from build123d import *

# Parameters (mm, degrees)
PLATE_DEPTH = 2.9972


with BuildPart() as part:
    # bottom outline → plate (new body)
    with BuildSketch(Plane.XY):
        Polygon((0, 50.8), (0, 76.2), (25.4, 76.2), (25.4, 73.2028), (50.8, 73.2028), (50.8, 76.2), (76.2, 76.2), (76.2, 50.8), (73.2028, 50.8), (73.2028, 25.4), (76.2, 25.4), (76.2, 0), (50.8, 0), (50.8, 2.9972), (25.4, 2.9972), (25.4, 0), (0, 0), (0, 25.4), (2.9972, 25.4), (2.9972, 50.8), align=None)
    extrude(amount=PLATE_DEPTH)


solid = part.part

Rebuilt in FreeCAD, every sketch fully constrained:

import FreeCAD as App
import Part
import Sketcher
Q = App.Units.Quantity

doc = App.newDocument("Part")
params = doc.addObject("Spreadsheet::Sheet", "Params")
for row, (alias, value) in enumerate([
    ("sketch1_width", "1 in"),
    ("sketch1_width2", "0.118 in"),
    ("pad1_length", "0.118 in"),
], start=1):
    params.set(f"A{row}", alias)
    params.set(f"B{row}", "=" + value)
    params.setAlias(f"B{row}", alias)

body = doc.addObject("PartDesign::Body", "Body")

# Sketch on XY plane
sketch1 = body.newObject("Sketcher::SketchObject", "Sketch")
sketch1.AttachmentSupport = (doc.getObject("XY_Plane"), [""])
sketch1.MapMode = "FlatFace"
sketch1.addGeometry([
    Part.LineSegment(App.Vector(0, 76.2, 0), App.Vector(0, 50.8, 0)),  # 0
    Part.LineSegment(App.Vector(0, 50.8, 0), App.Vector(3, 50.8, 0)),  # 1
    Part.LineSegment(App.Vector(3, 50.8, 0), App.Vector(3, 25.4, 0)),  # 2
    Part.LineSegment(App.Vector(3, 25.4, 0), App.Vector(0, 25.4, 0)),  # 3
    Part.LineSegment(App.Vector(0, 25.4, 0), App.Vector(0, 0, 0)),  # 4
    Part.LineSegment(App.Vector(0, 0, 0), App.Vector(25.4, 0, 0)),  # 5
    Part.LineSegment(App.Vector(25.4, 0, 0), App.Vector(25.4, 3, 0)),  # 6
    Part.LineSegment(App.Vector(25.4, 3, 0), App.Vector(50.8, 3, 0)),  # 7
    Part.LineSegment(App.Vector(50.8, 3, 0), App.Vector(50.8, 0, 0)),  # 8
    Part.LineSegment(App.Vector(50.8, 0, 0), App.Vector(76.2, 0, 0)),  # 9
    Part.LineSegment(App.Vector(76.2, 0, 0), App.Vector(76.2, 25.4, 0)),  # 10
    Part.LineSegment(App.Vector(76.2, 25.4, 0), App.Vector(73.2, 25.4, 0)),  # 11
    Part.LineSegment(App.Vector(73.2, 25.4, 0), App.Vector(73.2, 50.8, 0)),  # 12
    Part.LineSegment(App.Vector(73.2, 50.8, 0), App.Vector(76.2, 50.8, 0)),  # 13
    Part.LineSegment(App.Vector(76.2, 50.8, 0), App.Vector(76.2, 76.2, 0)),  # 14
    Part.LineSegment(App.Vector(76.2, 76.2, 0), App.Vector(50.8, 76.2, 0)),  # 15
    Part.LineSegment(App.Vector(50.8, 76.2, 0), App.Vector(50.8, 73.2, 0)),  # 16
    Part.LineSegment(App.Vector(50.8, 73.2, 0), App.Vector(25.4, 73.2, 0)),  # 17
    Part.LineSegment(App.Vector(25.4, 73.2, 0), App.Vector(25.4, 76.2, 0)),  # 18
    Part.LineSegment(App.Vector(25.4, 76.2, 0), App.Vector(0, 76.2, 0)),  # 19
], False)
sketch1.addConstraint([
    Sketcher.Constraint("Coincident", 0, 2, 1, 1),
    Sketcher.Constraint("Coincident", 1, 2, 2, 1),
    Sketcher.Constraint("Coincident", 2, 2, 3, 1),
    Sketcher.Constraint("Coincident", 3, 2, 4, 1),
    Sketcher.Constraint("Coincident", 4, 2, 5, 1),
    Sketcher.Constraint("Coincident", 5, 2, 6, 1),
    Sketcher.Constraint("Coincident", 6, 2, 7, 1),
    Sketcher.Constraint("Coincident", 7, 2, 8, 1),
    Sketcher.Constraint("Coincident", 8, 2, 9, 1),
    Sketcher.Constraint("Coincident", 9, 2, 10, 1),
    Sketcher.Constraint("Coincident", 10, 2, 11, 1),
    Sketcher.Constraint("Coincident", 11, 2, 12, 1),
    Sketcher.Constraint("Coincident", 12, 2, 13, 1),
    Sketcher.Constraint("Coincident", 13, 2, 14, 1),
    Sketcher.Constraint("Coincident", 14, 2, 15, 1),
    Sketcher.Constraint("Coincident", 15, 2, 16, 1),
    Sketcher.Constraint("Coincident", 16, 2, 17, 1),
    Sketcher.Constraint("Coincident", 17, 2, 18, 1),
    Sketcher.Constraint("Coincident", 18, 2, 19, 1),
    Sketcher.Constraint("Coincident", 19, 2, 0, 1),
    Sketcher.Constraint("Vertical", 0),
    Sketcher.Constraint("Horizontal", 1),
    Sketcher.Constraint("Vertical", 2),
    Sketcher.Constraint("Horizontal", 3),
    Sketcher.Constraint("Vertical", 4),
    Sketcher.Constraint("Horizontal", 5),
    Sketcher.Constraint("Vertical", 6),
    Sketcher.Constraint("Horizontal", 7),
    Sketcher.Constraint("Vertical", 8),
    Sketcher.Constraint("Horizontal", 9),
    Sketcher.Constraint("Vertical", 10),
    Sketcher.Constraint("Horizontal", 11),
    Sketcher.Constraint("Vertical", 12),
    Sketcher.Constraint("Horizontal", 13),
    Sketcher.Constraint("Vertical", 14),
    Sketcher.Constraint("Horizontal", 15),
    Sketcher.Constraint("Vertical", 16),
    Sketcher.Constraint("Horizontal", 17),
    Sketcher.Constraint("Vertical", 18),
    Sketcher.Constraint("Horizontal", 19),
    Sketcher.Constraint("Coincident", 4, 2, -1, 1),
    Sketcher.Constraint("PointOnObject", 0, 2, -2),
    Sketcher.Constraint("PointOnObject", 8, 2, -1),
    Sketcher.Constraint("Horizontal", 3, 2, 10, 2),
    Sketcher.Constraint("Horizontal", 1, 2, 12, 2),
    Sketcher.Constraint("Horizontal", 15, 2, 18, 2),
    Sketcher.Constraint("Vertical", 10, 2, 13, 2),
    Sketcher.Constraint("Vertical", 8, 2, 15, 2),
    Sketcher.Constraint("Vertical", 6, 2, 17, 2),
    Sketcher.Constraint("Equal", 5, 7),
    Sketcher.Constraint("Equal", 7, 9),
    Sketcher.Constraint("Equal", 3, 11),
    Sketcher.Constraint("Equal", 19, 0),
    Sketcher.Constraint("Equal", 0, 2),
    Sketcher.Constraint("Equal", 2, 4),
    Sketcher.Constraint("Equal", 13, 6),
    Sketcher.Constraint("Equal", 8, 16),
    Sketcher.Constraint("DistanceX", 5, 1, 5, 2, Q("1 in")),
    Sketcher.Constraint("DistanceX", 1, 1, 1, 2, Q("0.118 in")),
])
sketch1.setExpression("Constraints[57]", "Params.sketch1_width")
sketch1.setExpression("Constraints[58]", "Params.sketch1_width2")
pad1 = body.newObject("PartDesign::Pad", "Pad")
pad1.Profile = sketch1
pad1.setExpression("Length", "Params.pad1_length")

doc.recompute()
